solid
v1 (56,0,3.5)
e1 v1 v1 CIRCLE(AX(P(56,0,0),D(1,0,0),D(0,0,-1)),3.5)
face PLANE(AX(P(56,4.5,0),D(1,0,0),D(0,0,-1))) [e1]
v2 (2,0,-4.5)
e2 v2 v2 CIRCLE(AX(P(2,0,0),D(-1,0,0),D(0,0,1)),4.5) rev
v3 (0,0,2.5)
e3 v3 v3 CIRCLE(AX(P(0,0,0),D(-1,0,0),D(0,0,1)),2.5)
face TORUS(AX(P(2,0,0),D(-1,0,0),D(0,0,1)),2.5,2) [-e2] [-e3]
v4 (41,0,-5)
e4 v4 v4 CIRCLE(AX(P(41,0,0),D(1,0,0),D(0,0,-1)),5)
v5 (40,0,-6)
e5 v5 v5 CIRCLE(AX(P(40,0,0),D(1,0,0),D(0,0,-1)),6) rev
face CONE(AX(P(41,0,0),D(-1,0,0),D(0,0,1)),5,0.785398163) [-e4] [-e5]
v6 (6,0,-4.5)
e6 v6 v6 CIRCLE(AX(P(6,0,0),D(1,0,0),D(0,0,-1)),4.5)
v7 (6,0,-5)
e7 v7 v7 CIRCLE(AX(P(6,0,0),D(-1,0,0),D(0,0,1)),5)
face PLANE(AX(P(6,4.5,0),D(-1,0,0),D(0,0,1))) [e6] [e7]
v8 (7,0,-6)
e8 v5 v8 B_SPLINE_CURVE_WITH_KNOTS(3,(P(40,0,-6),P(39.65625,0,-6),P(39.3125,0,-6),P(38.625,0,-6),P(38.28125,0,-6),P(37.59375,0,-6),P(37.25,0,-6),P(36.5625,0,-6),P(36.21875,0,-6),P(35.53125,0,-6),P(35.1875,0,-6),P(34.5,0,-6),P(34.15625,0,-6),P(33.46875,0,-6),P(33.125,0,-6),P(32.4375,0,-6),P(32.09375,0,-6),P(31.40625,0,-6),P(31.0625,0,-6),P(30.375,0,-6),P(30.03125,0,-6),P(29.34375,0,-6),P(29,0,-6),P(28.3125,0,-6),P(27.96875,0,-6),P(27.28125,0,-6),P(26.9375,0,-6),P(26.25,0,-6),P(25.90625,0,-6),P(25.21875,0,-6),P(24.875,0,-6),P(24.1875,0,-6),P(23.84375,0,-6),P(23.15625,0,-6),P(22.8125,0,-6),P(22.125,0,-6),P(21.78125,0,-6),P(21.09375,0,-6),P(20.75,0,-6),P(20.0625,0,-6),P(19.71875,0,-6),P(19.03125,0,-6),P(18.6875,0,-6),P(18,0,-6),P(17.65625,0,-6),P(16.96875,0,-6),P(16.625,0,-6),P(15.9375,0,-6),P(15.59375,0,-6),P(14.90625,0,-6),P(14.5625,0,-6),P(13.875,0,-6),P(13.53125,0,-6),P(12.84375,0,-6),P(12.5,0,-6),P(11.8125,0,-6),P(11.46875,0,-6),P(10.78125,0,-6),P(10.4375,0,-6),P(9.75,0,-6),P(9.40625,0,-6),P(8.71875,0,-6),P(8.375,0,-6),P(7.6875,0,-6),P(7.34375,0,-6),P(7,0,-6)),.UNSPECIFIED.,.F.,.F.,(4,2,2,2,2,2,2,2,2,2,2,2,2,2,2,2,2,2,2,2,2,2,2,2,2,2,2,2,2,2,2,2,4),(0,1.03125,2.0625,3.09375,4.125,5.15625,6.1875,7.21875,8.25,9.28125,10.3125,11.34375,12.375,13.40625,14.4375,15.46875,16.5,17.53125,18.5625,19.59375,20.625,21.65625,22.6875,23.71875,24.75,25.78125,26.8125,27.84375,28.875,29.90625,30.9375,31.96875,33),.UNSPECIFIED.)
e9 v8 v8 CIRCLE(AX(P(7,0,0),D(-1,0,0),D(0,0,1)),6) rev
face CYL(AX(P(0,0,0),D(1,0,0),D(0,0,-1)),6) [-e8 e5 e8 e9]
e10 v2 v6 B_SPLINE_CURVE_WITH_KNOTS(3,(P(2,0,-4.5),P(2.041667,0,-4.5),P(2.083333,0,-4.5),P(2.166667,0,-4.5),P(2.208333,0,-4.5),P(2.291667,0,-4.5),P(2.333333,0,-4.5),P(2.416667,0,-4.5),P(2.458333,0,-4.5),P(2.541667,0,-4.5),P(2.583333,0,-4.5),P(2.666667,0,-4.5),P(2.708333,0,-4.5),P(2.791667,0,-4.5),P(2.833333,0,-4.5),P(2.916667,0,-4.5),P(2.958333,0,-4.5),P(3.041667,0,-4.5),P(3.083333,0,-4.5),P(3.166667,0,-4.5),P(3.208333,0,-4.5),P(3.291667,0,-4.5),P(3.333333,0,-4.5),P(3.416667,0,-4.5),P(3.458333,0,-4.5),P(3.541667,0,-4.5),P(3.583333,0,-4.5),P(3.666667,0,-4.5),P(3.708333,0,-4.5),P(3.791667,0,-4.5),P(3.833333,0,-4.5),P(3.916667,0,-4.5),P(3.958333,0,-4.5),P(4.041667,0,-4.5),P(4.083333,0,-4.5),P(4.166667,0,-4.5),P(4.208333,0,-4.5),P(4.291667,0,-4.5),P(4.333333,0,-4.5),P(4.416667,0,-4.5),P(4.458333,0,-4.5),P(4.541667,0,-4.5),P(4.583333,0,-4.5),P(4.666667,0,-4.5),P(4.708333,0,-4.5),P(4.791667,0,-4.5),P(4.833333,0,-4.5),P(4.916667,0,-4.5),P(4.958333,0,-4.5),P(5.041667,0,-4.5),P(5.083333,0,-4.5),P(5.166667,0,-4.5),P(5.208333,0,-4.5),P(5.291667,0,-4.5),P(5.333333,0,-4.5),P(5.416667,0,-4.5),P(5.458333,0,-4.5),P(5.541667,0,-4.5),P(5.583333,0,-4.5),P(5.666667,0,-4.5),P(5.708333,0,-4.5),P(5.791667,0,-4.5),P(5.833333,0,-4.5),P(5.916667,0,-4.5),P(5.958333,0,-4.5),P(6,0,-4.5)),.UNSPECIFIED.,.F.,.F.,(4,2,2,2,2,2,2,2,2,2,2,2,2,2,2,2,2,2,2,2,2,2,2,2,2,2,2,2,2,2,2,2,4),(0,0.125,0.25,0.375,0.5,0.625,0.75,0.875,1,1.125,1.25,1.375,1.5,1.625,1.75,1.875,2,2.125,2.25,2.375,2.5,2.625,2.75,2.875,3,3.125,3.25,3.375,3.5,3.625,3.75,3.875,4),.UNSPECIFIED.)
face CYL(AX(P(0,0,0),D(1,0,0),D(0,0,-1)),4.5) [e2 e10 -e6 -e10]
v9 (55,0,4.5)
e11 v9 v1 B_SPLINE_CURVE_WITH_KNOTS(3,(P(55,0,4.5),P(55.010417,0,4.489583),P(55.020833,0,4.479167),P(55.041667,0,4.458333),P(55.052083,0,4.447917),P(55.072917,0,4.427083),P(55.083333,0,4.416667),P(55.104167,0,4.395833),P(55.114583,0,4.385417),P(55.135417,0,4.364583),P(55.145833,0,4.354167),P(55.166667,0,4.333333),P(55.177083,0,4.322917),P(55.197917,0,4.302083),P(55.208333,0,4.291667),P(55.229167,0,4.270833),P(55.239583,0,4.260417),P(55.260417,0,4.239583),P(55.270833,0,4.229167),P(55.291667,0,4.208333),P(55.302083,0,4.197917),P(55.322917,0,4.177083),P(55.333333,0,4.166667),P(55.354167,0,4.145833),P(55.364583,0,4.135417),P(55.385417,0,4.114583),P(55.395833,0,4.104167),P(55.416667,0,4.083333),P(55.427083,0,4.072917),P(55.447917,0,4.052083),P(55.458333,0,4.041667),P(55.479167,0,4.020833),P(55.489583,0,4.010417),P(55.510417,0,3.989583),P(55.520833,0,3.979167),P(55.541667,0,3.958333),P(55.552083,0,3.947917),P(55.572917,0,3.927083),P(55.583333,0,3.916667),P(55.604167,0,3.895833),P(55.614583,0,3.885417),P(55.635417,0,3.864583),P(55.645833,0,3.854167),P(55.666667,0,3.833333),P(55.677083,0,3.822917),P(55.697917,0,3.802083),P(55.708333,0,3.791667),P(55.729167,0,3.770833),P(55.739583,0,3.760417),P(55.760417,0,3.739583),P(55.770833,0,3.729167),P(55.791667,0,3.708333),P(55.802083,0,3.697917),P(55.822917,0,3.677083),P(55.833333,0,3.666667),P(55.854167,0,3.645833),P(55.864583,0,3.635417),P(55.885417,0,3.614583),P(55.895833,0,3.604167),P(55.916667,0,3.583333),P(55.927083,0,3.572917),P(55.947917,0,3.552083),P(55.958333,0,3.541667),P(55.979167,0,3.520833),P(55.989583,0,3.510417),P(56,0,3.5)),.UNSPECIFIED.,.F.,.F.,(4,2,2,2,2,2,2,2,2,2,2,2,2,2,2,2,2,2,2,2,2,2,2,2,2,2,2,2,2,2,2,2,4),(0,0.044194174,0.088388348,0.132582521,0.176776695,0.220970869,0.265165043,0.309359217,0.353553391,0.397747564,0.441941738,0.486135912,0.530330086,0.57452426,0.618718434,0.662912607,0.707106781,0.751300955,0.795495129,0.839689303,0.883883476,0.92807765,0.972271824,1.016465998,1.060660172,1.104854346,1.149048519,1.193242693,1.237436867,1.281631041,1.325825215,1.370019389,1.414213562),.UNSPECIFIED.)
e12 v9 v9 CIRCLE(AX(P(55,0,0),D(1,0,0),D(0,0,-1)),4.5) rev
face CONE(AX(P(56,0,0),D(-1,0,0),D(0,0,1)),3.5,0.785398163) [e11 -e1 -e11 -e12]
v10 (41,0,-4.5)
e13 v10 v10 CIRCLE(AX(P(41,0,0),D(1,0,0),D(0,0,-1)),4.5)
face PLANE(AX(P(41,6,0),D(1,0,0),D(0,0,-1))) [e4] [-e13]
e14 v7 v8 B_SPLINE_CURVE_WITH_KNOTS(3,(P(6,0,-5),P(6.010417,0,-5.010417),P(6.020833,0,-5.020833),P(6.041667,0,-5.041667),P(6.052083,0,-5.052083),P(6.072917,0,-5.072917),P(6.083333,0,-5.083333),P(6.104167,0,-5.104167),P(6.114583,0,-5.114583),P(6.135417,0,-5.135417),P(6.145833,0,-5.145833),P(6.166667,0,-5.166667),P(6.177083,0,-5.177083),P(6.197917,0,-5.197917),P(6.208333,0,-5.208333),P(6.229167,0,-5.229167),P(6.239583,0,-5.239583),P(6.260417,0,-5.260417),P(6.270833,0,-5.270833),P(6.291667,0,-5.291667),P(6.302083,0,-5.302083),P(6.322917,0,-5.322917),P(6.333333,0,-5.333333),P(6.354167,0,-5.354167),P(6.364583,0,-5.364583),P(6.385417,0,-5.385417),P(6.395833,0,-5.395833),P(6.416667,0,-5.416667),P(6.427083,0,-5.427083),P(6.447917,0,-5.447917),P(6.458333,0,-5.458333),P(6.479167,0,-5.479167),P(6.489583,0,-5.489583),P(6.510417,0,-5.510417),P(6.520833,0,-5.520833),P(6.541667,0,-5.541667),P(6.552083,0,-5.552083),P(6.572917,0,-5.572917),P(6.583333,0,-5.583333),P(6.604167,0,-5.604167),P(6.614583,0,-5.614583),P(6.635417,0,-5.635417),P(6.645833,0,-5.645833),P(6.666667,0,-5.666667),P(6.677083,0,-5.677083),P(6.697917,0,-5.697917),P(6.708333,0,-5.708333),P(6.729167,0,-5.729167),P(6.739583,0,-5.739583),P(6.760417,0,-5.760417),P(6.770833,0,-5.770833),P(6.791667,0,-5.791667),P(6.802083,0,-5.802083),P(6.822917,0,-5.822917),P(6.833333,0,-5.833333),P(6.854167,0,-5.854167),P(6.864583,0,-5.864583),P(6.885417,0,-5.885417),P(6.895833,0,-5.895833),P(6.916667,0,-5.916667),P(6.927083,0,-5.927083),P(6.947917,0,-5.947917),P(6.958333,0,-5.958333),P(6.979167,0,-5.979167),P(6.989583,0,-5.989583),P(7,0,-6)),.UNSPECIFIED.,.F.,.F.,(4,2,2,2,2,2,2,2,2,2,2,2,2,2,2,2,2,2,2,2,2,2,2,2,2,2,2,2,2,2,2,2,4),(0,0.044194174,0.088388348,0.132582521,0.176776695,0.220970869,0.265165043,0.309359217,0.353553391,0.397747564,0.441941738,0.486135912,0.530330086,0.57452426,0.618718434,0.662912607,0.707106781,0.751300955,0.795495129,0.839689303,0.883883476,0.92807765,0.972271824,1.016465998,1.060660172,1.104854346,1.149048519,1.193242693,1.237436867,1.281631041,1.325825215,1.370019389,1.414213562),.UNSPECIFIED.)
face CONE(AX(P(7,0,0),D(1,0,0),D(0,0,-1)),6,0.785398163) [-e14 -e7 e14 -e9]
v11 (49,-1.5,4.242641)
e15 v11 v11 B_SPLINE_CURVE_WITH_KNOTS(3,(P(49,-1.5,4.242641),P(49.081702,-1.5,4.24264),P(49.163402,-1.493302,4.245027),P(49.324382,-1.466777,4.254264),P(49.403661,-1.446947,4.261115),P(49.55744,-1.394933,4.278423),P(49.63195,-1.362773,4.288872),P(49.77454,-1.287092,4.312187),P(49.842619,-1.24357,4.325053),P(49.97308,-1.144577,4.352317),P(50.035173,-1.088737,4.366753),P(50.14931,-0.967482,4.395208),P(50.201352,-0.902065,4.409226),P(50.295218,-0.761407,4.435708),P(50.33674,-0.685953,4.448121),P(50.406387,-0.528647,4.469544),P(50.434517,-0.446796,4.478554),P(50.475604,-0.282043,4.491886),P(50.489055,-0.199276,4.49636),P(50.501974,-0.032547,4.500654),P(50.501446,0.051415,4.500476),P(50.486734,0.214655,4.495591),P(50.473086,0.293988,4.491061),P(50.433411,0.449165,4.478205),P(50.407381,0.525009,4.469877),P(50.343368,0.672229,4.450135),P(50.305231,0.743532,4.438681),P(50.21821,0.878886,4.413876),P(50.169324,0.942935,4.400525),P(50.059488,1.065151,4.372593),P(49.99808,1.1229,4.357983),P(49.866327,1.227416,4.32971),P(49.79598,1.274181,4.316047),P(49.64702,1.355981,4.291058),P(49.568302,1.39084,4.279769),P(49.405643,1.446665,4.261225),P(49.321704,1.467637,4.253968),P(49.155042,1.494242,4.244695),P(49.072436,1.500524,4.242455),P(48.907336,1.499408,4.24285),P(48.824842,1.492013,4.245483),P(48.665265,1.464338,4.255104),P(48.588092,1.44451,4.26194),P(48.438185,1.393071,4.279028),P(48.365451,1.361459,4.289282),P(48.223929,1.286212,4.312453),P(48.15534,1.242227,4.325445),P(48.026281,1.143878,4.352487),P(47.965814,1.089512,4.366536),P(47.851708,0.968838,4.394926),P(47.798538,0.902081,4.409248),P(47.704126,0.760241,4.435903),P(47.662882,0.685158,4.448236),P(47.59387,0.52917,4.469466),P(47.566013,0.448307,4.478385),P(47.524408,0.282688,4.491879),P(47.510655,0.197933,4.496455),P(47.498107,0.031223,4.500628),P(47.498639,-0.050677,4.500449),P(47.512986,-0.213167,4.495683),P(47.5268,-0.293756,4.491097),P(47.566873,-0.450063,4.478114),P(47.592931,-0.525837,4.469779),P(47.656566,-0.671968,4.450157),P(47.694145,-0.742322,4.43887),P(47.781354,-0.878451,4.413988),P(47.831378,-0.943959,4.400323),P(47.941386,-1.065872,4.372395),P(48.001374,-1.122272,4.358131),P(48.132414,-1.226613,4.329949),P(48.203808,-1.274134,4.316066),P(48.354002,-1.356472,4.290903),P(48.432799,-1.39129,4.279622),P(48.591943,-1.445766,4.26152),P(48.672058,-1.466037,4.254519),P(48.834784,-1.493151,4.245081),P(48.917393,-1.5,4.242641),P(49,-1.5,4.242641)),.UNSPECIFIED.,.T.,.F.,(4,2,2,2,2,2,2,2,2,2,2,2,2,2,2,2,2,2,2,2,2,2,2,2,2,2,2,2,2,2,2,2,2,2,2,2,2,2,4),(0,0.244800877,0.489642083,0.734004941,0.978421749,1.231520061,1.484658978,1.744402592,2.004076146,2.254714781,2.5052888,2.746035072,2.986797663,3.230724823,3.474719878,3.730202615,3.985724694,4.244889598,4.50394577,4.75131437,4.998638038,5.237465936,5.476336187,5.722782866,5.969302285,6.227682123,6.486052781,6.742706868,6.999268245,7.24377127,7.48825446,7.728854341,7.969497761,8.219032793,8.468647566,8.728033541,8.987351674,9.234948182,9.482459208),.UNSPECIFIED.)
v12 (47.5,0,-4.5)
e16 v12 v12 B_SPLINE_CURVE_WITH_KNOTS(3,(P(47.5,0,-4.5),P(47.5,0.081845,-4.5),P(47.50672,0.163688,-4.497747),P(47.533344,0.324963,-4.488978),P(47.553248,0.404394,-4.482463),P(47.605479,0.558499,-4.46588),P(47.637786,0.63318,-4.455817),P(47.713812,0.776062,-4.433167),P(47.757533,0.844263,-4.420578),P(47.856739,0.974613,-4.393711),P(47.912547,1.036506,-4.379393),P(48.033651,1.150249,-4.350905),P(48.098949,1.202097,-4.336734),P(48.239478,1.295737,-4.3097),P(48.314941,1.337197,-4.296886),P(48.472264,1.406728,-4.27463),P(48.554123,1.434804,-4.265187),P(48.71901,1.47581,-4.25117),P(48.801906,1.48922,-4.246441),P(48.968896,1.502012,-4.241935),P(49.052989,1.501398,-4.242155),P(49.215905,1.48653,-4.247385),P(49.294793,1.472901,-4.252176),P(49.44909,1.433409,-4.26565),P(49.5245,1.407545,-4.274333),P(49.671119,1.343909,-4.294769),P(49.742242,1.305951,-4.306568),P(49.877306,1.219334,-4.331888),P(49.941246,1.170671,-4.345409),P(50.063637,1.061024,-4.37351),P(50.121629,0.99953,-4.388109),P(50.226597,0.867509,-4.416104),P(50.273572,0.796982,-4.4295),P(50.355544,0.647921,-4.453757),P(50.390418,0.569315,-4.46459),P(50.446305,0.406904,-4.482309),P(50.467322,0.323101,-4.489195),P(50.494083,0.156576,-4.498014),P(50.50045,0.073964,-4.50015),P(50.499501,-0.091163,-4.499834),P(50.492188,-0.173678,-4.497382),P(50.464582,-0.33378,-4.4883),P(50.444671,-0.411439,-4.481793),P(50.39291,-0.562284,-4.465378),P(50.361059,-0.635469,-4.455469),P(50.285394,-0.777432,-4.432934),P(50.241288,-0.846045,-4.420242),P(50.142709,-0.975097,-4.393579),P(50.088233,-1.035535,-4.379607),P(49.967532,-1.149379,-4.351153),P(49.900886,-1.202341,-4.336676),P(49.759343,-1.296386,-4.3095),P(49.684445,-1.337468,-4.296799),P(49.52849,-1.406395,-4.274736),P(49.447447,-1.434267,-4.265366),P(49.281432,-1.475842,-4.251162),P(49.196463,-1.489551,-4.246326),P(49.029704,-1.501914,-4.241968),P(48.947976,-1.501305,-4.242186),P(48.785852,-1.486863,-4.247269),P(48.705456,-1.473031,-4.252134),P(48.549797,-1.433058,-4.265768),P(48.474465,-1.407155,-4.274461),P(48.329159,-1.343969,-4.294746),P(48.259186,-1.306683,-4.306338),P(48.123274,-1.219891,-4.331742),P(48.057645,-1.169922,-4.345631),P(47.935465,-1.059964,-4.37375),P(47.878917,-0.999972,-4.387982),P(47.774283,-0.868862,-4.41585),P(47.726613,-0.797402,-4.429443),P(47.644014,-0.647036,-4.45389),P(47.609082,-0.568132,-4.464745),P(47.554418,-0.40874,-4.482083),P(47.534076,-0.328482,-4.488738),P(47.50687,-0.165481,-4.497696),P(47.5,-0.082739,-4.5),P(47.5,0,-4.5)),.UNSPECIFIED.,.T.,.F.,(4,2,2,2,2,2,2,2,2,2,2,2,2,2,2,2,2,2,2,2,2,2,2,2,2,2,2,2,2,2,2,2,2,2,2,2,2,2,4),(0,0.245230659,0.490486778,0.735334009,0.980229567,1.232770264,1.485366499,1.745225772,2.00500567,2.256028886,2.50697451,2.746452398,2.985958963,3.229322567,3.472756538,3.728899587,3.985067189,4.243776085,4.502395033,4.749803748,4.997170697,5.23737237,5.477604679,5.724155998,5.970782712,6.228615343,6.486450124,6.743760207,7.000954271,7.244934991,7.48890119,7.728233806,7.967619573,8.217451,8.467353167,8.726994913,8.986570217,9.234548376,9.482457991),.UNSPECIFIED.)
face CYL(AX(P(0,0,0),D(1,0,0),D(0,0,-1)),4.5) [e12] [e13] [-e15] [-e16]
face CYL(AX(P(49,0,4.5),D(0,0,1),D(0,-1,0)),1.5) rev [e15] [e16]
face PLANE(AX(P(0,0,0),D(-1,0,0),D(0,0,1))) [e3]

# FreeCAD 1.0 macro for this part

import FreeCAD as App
import Part
import Sketcher
Q = App.Units.Quantity


def edges_at(feature, points):
    """Names of the edges that pass closest to the given points."""
    edges = feature.Shape.Edges
    near = lambda p: min(range(len(edges)), key=lambda i: edges[i].distToShape(Part.Vertex(*p))[0])
    return sorted({f"Edge{near(p) + 1}" for p in points})


def add_polygon(sketch, points):
    """Adds a closed chain of lines whose ends are joined by coincident constraints."""
    first, n = sketch.GeometryCount, len(points)
    for a, b in zip(points, points[1:] + points[:1]):
        sketch.addGeometry(Part.LineSegment(App.Vector(*a, 0), App.Vector(*b, 0)), False)
    for i in range(n):
        sketch.addConstraint(Sketcher.Constraint("Coincident", first + i, 2, first + (i + 1) % n, 1))

doc = App.newDocument("Part")
params = doc.addObject("Spreadsheet::Sheet", "Params")
for row, (alias, value) in enumerate([
    ("sketch1_width", "56 mm"),
    ("sketch1_width2", "15 mm"),
    ("sketch1_width3", "35 mm"),
    ("sketch1_height", "4.5 mm"),
    ("sketch1_height2", "1.5 mm"),
    ("revolution_angle", "360 deg"),
    ("chamfer_size", "1 mm"),
    ("fillet_radius", "2 mm"),
    ("sketch2_diameter", "3 mm"),
    ("hole_diameter", "3 mm"),
], start=1):
    params.set(f"A{row}", alias)
    params.set(f"B{row}", "=" + value)
    params.setAlias(f"B{row}", alias)

body = doc.addObject("PartDesign::Body", "Body")

sketch1 = doc.addObject("Sketcher::SketchObject", "Sketch")
body.addObject(sketch1)
sketch1.AttachmentSupport = (doc.XY_Plane, [""])
sketch1.MapMode = "FlatFace"
add_polygon(sketch1, [(0, 4.5), (0, 0), (56, 0), (56, 4.5), (41, 4.5), (41, 6), (6, 6), (6, 4.5)])
sketch1.addConstraint(Sketcher.Constraint("Vertical", 0))
sketch1.addConstraint(Sketcher.Constraint("Horizontal", 1))
sketch1.addConstraint(Sketcher.Constraint("Vertical", 2))
sketch1.addConstraint(Sketcher.Constraint("Horizontal", 3))
sketch1.addConstraint(Sketcher.Constraint("Vertical", 4))
sketch1.addConstraint(Sketcher.Constraint("Horizontal", 5))
sketch1.addConstraint(Sketcher.Constraint("Vertical", 6))
sketch1.addConstraint(Sketcher.Constraint("Horizontal", 7))
sketch1.addConstraint(Sketcher.Constraint("Coincident", 0, 2, -1, 1))
sketch1.addConstraint(Sketcher.Constraint("Horizontal", 3, 2, 6, 2))
sketch1.addConstraint(Sketcher.Constraint("DistanceX", 1, 1, 1, 2, Q("56 mm")))
sketch1.addConstraint(Sketcher.Constraint("DistanceX", 3, 2, 3, 1, Q("15 mm")))
sketch1.addConstraint(Sketcher.Constraint("DistanceX", 5, 2, 5, 1, Q("35 mm")))
sketch1.addConstraint(Sketcher.Constraint("DistanceY", 0, 2, 0, 1, Q("4.5 mm")))
sketch1.addConstraint(Sketcher.Constraint("DistanceY", 4, 1, 4, 2, Q("1.5 mm")))
sketch1.setExpression("Constraints[18]", "Params.sketch1_width")
sketch1.setExpression("Constraints[19]", "Params.sketch1_width2")
sketch1.setExpression("Constraints[20]", "Params.sketch1_width3")
sketch1.setExpression("Constraints[21]", "Params.sketch1_height")
sketch1.setExpression("Constraints[22]", "Params.sketch1_height2")
revolution = doc.addObject("PartDesign::Revolution", "Revolution")
body.addObject(revolution)
revolution.Profile = sketch1
revolution.ReferenceAxis = (sketch1, ["H_Axis"])
revolution.setExpression("Angle", "Params.revolution_angle")
doc.recompute()

chamfer = doc.addObject("PartDesign::Chamfer", "Chamfer")
body.addObject(chamfer)
chamfer.Base = (revolution, edges_at(revolution, [(56, 0, 4.5), (41, 0, 6), (6, 0, 6)]))
chamfer.setExpression("Size", "Params.chamfer_size")
doc.recompute()

fillet = doc.addObject("PartDesign::Fillet", "Fillet")
body.addObject(fillet)
fillet.Base = (chamfer, edges_at(chamfer, [(0, 0, 4.5)]))
fillet.setExpression("Radius", "Params.fillet_radius")

sketch2 = doc.addObject("Sketcher::SketchObject", "Sketch001")
body.addObject(sketch2)
sketch2.AttachmentSupport = (doc.XY_Plane, [""])
sketch2.MapMode = "FlatFace"
sketch2.AttachmentOffset = App.Placement(App.Vector(0, 0, 4.5), App.Rotation())
sketch2.addGeometry(Part.Circle(App.Vector(49, 0, 0), App.Vector(0, 0, 1), 1.5), False)
sketch2.addConstraint(Sketcher.Constraint("PointOnObject", 0, 3, -1))
sketch2.addConstraint(Sketcher.Constraint("Diameter", 0, Q("3 mm")))
sketch2.addConstraint(Sketcher.Constraint("DistanceX", -1, 1, 0, 3, Q("49 mm")))
sketch2.setExpression("Constraints[1]", "Params.sketch2_diameter")
doc.recompute()
hole = doc.addObject("PartDesign::Hole", "Hole")
body.addObject(hole)
hole.Profile = sketch2
hole.ThreadType = "None"
hole.setExpression("Diameter", "Params.hole_diameter")
hole.DepthType = "ThroughAll"

doc.recompute()
